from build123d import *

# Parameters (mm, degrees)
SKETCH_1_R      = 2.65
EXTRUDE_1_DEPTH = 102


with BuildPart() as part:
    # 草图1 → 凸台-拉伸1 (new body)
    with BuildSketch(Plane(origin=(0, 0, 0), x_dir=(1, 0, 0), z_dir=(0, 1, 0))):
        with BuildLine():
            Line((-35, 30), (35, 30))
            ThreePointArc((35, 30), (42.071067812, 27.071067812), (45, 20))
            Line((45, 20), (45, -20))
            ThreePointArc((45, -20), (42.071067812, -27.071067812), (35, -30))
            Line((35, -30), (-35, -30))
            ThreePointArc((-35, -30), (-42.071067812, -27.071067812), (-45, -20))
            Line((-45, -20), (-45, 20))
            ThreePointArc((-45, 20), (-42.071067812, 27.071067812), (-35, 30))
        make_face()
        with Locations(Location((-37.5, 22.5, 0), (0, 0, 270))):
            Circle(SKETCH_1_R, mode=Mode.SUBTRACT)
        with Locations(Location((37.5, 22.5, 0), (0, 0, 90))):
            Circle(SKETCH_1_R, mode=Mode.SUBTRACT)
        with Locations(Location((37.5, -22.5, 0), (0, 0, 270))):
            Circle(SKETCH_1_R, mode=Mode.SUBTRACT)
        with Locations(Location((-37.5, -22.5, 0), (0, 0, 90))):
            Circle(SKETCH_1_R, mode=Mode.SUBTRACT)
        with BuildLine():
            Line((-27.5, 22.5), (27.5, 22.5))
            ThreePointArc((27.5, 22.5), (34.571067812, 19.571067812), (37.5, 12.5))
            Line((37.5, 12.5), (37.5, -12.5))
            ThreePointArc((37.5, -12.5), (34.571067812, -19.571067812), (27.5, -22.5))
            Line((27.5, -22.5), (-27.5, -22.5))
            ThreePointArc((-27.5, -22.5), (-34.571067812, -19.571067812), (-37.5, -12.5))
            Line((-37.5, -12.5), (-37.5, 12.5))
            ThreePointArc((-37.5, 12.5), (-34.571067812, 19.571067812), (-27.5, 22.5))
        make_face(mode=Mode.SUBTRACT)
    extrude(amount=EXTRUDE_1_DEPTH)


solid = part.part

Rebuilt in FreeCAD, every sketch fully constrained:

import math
import FreeCAD as App
import Part
import Sketcher
from FreeCAD import Vector
Q = App.Units.Quantity

doc = App.newDocument("Part")
params = doc.addObject("Spreadsheet::Sheet", "Params")
for row, (alias, value) in enumerate([
    ("sketch1_radius", "10 mm"),
    ("sketch1_diameter", "5.3 mm"),
    ("sketch1_width", "70 mm"),
    ("sketch1_width2", "55 mm"),
    ("sketch1_height", "40 mm"),
    ("pad1_length", "102 mm"),
], start=1):
    params.set(f"A{row}", alias)
    params.set(f"B{row}", "=" + value)
    params.setAlias(f"B{row}", alias)

body = doc.addObject("PartDesign::Body", "Body")

sketch1 = doc.addObject("Sketcher::SketchObject", "Sketch")
body.addObject(sketch1)
sketch1.AttachmentSupport = (doc.XZ_Plane, [""])
sketch1.MapMode = "FlatFace"
sketch1.addGeometry([
    Part.LineSegment(Vector(35, -30, 0), Vector(-35, -30, 0)),
    Part.ArcOfCircle(Part.Circle(Vector(-35, -20, 0), Vector(0, 0, 1), 10), math.radians(180), math.radians(270)),
    Part.LineSegment(Vector(-45, -20, 0), Vector(-45, 20, 0)),
    Part.ArcOfCircle(Part.Circle(Vector(-35, 20, 0), Vector(0, 0, 1), 10), math.radians(90), math.radians(180)),
    Part.LineSegment(Vector(-35, 30, 0), Vector(35, 30, 0)),
    Part.ArcOfCircle(Part.Circle(Vector(35, 20, 0), Vector(0, 0, 1), 10), math.radians(0), math.radians(90)),
    Part.LineSegment(Vector(45, 20, 0), Vector(45, -20, 0)),
    Part.ArcOfCircle(Part.Circle(Vector(35, -20, 0), Vector(0, 0, 1), 10), math.radians(-90), math.radians(0)),
    Part.Circle(Vector(37.5, 22.5, 0), Vector(0, 0, 1), 2.6),
    Part.Circle(Vector(-37.5, 22.5, 0), Vector(0, 0, 1), 2.6),
    Part.Circle(Vector(37.5, -22.5, 0), Vector(0, 0, 1), 2.6),
    Part.LineSegment(Vector(-27.5, -22.5, 0), Vector(27.5, -22.5, 0)),
    Part.ArcOfCircle(Part.Circle(Vector(27.5, -12.5, 0), Vector(0, 0, 1), 10), math.radians(-90), math.radians(0)),
    Part.LineSegment(Vector(37.5, -12.5, 0), Vector(37.5, 12.5, 0)),
    Part.ArcOfCircle(Part.Circle(Vector(27.5, 12.5, 0), Vector(0, 0, 1), 10), math.radians(0), math.radians(90)),
    Part.LineSegment(Vector(27.5, 22.5, 0), Vector(-27.5, 22.5, 0)),
    Part.ArcOfCircle(Part.Circle(Vector(-27.5, 12.5, 0), Vector(0, 0, 1), 10), math.radians(90), math.radians(180)),
    Part.LineSegment(Vector(-37.5, 12.5, 0), Vector(-37.5, -12.5, 0)),
    Part.ArcOfCircle(Part.Circle(Vector(-27.5, -12.5, 0), Vector(0, 0, 1), 10), math.radians(180), math.radians(270)),
    Part.Circle(Vector(-37.5, -22.5, 0), Vector(0, 0, 1), 2.6),
], False)
sketch1.addConstraint([
    Sketcher.Constraint("Tangent", 0, 2, 1, 2),
    Sketcher.Constraint("Tangent", 1, 1, 2, 1),
    Sketcher.Constraint("Tangent", 2, 2, 3, 2),
    Sketcher.Constraint("Tangent", 3, 1, 4, 1),
    Sketcher.Constraint("Tangent", 4, 2, 5, 2),
    Sketcher.Constraint("Tangent", 5, 1, 6, 1),
    Sketcher.Constraint("Tangent", 6, 2, 7, 2),
    Sketcher.Constraint("Tangent", 7, 1, 0, 1),
    Sketcher.Constraint("Tangent", 11, 2, 12, 1),
    Sketcher.Constraint("Tangent", 12, 2, 13, 1),
    Sketcher.Constraint("Tangent", 13, 2, 14, 1),
    Sketcher.Constraint("Tangent", 14, 2, 15, 1),
    Sketcher.Constraint("Tangent", 15, 2, 16, 1),
    Sketcher.Constraint("Tangent", 16, 2, 17, 1),
    Sketcher.Constraint("Tangent", 17, 2, 18, 1),
    Sketcher.Constraint("Tangent", 18, 2, 11, 1),
    Sketcher.Constraint("Horizontal", 0),
    Sketcher.Constraint("Vertical", 2),
    Sketcher.Constraint("Horizontal", 4),
    Sketcher.Constraint("Vertical", 6),
    Sketcher.Constraint("Horizontal", 11),
    Sketcher.Constraint("Vertical", 13),
    Sketcher.Constraint("Horizontal", 15),
    Sketcher.Constraint("Vertical", 17),
    Sketcher.Constraint("Equal", 1, 3),
    Sketcher.Constraint("Equal", 3, 5),
    Sketcher.Constraint("Equal", 5, 7),
    Sketcher.Constraint("Equal", 8, 9),
    Sketcher.Constraint("Equal", 9, 10),
    Sketcher.Constraint("Equal", 7, 12),
    Sketcher.Constraint("Equal", 12, 14),
    Sketcher.Constraint("Equal", 14, 16),
    Sketcher.Constraint("Equal", 16, 18),
    Sketcher.Constraint("Equal", 10, 19),
    Sketcher.Constraint("Symmetric", 1, 3, 5, 3, -1, 1),
    Sketcher.Constraint("Symmetric", 9, 3, 10, 3, -1, 1),
    Sketcher.Constraint("Symmetric", 12, 3, 16, 3, -1, 1),
    Sketcher.Constraint("Symmetric", 8, 3, 19, 3, -1, 1),
    Sketcher.Constraint("Symmetric", 8, 3, 9, 3, -2),
    Sketcher.Constraint("Horizontal", 19, 3, 11, 2),
    Sketcher.Constraint("Vertical", 10, 3, 12, 2),
    Sketcher.Constraint("Radius", 1, Q("10 mm")),
    Sketcher.Constraint("Diameter", 8, Q("5.3 mm")),
    Sketcher.Constraint("DistanceX", 0, 2, 0, 1, Q("70 mm")),
    Sketcher.Constraint("DistanceX", 11, 1, 11, 2, Q("55 mm")),
    Sketcher.Constraint("DistanceY", 2, 1, 2, 2, Q("40 mm")),
    Sketcher.Constraint("DistanceY", 13, 1, 13, 2, Q("25 mm")),
])
sketch1.setExpression("Constraints[41]", "Params.sketch1_radius")
sketch1.setExpression("Constraints[42]", "Params.sketch1_diameter")
sketch1.setExpression("Constraints[43]", "Params.sketch1_width")
sketch1.setExpression("Constraints[44]", "Params.sketch1_width2")
sketch1.setExpression("Constraints[45]", "Params.sketch1_height")
pad1 = doc.addObject("PartDesign::Pad", "Pad")
body.addObject(pad1)
pad1.Profile = sketch1
pad1.setExpression("Length", "Params.pad1_length")
pad1.Reversed = True

doc.recompute()
